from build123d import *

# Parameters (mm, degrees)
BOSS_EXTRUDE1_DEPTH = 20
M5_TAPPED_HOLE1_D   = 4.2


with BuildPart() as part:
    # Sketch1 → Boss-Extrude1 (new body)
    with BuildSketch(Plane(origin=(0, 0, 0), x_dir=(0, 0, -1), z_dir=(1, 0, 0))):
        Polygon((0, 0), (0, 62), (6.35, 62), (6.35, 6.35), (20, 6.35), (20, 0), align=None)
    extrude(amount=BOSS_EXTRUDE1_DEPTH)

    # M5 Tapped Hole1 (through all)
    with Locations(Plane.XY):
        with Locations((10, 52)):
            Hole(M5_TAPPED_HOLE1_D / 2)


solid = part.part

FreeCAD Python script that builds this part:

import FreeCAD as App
import Part
import Sketcher

V = App.Vector

doc = App.newDocument("Part")
params = doc.addObject("Spreadsheet::Sheet", "Params")
for row, (alias, value) in enumerate([
    ("sketch1_width", "62 mm"),
    ("sketch1_height", "20 mm"),
    ("sketch1_width2", "6.35 mm"),
    ("pad1_length", "20 mm"),
    ("sketch2_diameter", "4.2 mm"),
    ("hole_diameter", "4.2 mm"),
], start=1):
    params.set(f"A{row}", alias)
    params.set(f"B{row}", "=" + value)
    params.setAlias(f"B{row}", alias)

body = doc.addObject("PartDesign::Body", "Body")

# Sketch on YZ plane
sketch1 = doc.addObject("Sketcher::SketchObject", "Sketch")
body.addObject(sketch1)
sketch1.AttachmentSupport = (doc.YZ_Plane, [""])
sketch1.MapMode = "FlatFace"
sketch1.addGeometry(Part.LineSegment(V(62, 0, 0), V(0, 0, 0)), False)
sketch1.addGeometry(Part.LineSegment(V(0, 0, 0), V(0, -20, 0)), False)
sketch1.addGeometry(Part.LineSegment(V(0, -20, 0), V(6, -20, 0)), False)
sketch1.addGeometry(Part.LineSegment(V(6, -20, 0), V(6, -6, 0)), False)
sketch1.addGeometry(Part.LineSegment(V(6, -6, 0), V(62, -6, 0)), False)
sketch1.addGeometry(Part.LineSegment(V(62, -6, 0), V(62, 0, 0)), False)
sketch1.addConstraint(Sketcher.Constraint("Coincident", 0, 2, 1, 1))
sketch1.addConstraint(Sketcher.Constraint("Coincident", 1, 2, 2, 1))
sketch1.addConstraint(Sketcher.Constraint("Coincident", 2, 2, 3, 1))
sketch1.addConstraint(Sketcher.Constraint("Coincident", 3, 2, 4, 1))
sketch1.addConstraint(Sketcher.Constraint("Coincident", 4, 2, 5, 1))
sketch1.addConstraint(Sketcher.Constraint("Coincident", 5, 2, 0, 1))
sketch1.addConstraint(Sketcher.Constraint("Horizontal", 0))
sketch1.addConstraint(Sketcher.Constraint("Vertical", 1))
sketch1.addConstraint(Sketcher.Constraint("Horizontal", 2))
sketch1.addConstraint(Sketcher.Constraint("Vertical", 3))
sketch1.addConstraint(Sketcher.Constraint("Horizontal", 4))
sketch1.addConstraint(Sketcher.Constraint("Vertical", 5))
sketch1.addConstraint(Sketcher.Constraint("Coincident", 0, 2, -1, 1))
sketch1.addConstraint(Sketcher.Constraint("Equal", 2, 5))
sketch1.addConstraint(Sketcher.Constraint("DistanceX", 0, 2, 0, 1, 62.0))
sketch1.addConstraint(Sketcher.Constraint("DistanceY", 1, 2, 1, 1, 20.0))
sketch1.addConstraint(Sketcher.Constraint("DistanceX", 2, 1, 2, 2, 6.35))
sketch1.setExpression("Constraints[14]", "Params.sketch1_width")
sketch1.setExpression("Constraints[15]", "Params.sketch1_height")
sketch1.setExpression("Constraints[16]", "Params.sketch1_width2")
pad1 = doc.addObject("PartDesign::Pad", "Pad")
body.addObject(pad1)
pad1.Profile = sketch1
pad1.setExpression("Length", "Params.pad1_length")

# Sketch on XY plane
sketch2 = doc.addObject("Sketcher::SketchObject", "Sketch001")
body.addObject(sketch2)
sketch2.AttachmentSupport = (doc.XY_Plane, [""])
sketch2.MapMode = "FlatFace"
sketch2.addGeometry(Part.Circle(V(10, 52, 0), V(0, 0, 1), 2.1), False)
sketch2.addConstraint(Sketcher.Constraint("Diameter", 0, 4.2))
sketch2.addConstraint(Sketcher.Constraint("DistanceX", -1, 1, 0, 3, 10.0))
sketch2.addConstraint(Sketcher.Constraint("DistanceY", -1, 1, 0, 3, 52.0))
sketch2.setExpression("Constraints[0]", "Params.sketch2_diameter")
doc.recompute()
hole = doc.addObject("PartDesign::Hole", "Hole")
body.addObject(hole)
hole.Profile = sketch2
hole.ThreadType = "None"
hole.setExpression("Diameter", "Params.hole_diameter")
hole.DepthType = "ThroughAll"

doc.recompute()
